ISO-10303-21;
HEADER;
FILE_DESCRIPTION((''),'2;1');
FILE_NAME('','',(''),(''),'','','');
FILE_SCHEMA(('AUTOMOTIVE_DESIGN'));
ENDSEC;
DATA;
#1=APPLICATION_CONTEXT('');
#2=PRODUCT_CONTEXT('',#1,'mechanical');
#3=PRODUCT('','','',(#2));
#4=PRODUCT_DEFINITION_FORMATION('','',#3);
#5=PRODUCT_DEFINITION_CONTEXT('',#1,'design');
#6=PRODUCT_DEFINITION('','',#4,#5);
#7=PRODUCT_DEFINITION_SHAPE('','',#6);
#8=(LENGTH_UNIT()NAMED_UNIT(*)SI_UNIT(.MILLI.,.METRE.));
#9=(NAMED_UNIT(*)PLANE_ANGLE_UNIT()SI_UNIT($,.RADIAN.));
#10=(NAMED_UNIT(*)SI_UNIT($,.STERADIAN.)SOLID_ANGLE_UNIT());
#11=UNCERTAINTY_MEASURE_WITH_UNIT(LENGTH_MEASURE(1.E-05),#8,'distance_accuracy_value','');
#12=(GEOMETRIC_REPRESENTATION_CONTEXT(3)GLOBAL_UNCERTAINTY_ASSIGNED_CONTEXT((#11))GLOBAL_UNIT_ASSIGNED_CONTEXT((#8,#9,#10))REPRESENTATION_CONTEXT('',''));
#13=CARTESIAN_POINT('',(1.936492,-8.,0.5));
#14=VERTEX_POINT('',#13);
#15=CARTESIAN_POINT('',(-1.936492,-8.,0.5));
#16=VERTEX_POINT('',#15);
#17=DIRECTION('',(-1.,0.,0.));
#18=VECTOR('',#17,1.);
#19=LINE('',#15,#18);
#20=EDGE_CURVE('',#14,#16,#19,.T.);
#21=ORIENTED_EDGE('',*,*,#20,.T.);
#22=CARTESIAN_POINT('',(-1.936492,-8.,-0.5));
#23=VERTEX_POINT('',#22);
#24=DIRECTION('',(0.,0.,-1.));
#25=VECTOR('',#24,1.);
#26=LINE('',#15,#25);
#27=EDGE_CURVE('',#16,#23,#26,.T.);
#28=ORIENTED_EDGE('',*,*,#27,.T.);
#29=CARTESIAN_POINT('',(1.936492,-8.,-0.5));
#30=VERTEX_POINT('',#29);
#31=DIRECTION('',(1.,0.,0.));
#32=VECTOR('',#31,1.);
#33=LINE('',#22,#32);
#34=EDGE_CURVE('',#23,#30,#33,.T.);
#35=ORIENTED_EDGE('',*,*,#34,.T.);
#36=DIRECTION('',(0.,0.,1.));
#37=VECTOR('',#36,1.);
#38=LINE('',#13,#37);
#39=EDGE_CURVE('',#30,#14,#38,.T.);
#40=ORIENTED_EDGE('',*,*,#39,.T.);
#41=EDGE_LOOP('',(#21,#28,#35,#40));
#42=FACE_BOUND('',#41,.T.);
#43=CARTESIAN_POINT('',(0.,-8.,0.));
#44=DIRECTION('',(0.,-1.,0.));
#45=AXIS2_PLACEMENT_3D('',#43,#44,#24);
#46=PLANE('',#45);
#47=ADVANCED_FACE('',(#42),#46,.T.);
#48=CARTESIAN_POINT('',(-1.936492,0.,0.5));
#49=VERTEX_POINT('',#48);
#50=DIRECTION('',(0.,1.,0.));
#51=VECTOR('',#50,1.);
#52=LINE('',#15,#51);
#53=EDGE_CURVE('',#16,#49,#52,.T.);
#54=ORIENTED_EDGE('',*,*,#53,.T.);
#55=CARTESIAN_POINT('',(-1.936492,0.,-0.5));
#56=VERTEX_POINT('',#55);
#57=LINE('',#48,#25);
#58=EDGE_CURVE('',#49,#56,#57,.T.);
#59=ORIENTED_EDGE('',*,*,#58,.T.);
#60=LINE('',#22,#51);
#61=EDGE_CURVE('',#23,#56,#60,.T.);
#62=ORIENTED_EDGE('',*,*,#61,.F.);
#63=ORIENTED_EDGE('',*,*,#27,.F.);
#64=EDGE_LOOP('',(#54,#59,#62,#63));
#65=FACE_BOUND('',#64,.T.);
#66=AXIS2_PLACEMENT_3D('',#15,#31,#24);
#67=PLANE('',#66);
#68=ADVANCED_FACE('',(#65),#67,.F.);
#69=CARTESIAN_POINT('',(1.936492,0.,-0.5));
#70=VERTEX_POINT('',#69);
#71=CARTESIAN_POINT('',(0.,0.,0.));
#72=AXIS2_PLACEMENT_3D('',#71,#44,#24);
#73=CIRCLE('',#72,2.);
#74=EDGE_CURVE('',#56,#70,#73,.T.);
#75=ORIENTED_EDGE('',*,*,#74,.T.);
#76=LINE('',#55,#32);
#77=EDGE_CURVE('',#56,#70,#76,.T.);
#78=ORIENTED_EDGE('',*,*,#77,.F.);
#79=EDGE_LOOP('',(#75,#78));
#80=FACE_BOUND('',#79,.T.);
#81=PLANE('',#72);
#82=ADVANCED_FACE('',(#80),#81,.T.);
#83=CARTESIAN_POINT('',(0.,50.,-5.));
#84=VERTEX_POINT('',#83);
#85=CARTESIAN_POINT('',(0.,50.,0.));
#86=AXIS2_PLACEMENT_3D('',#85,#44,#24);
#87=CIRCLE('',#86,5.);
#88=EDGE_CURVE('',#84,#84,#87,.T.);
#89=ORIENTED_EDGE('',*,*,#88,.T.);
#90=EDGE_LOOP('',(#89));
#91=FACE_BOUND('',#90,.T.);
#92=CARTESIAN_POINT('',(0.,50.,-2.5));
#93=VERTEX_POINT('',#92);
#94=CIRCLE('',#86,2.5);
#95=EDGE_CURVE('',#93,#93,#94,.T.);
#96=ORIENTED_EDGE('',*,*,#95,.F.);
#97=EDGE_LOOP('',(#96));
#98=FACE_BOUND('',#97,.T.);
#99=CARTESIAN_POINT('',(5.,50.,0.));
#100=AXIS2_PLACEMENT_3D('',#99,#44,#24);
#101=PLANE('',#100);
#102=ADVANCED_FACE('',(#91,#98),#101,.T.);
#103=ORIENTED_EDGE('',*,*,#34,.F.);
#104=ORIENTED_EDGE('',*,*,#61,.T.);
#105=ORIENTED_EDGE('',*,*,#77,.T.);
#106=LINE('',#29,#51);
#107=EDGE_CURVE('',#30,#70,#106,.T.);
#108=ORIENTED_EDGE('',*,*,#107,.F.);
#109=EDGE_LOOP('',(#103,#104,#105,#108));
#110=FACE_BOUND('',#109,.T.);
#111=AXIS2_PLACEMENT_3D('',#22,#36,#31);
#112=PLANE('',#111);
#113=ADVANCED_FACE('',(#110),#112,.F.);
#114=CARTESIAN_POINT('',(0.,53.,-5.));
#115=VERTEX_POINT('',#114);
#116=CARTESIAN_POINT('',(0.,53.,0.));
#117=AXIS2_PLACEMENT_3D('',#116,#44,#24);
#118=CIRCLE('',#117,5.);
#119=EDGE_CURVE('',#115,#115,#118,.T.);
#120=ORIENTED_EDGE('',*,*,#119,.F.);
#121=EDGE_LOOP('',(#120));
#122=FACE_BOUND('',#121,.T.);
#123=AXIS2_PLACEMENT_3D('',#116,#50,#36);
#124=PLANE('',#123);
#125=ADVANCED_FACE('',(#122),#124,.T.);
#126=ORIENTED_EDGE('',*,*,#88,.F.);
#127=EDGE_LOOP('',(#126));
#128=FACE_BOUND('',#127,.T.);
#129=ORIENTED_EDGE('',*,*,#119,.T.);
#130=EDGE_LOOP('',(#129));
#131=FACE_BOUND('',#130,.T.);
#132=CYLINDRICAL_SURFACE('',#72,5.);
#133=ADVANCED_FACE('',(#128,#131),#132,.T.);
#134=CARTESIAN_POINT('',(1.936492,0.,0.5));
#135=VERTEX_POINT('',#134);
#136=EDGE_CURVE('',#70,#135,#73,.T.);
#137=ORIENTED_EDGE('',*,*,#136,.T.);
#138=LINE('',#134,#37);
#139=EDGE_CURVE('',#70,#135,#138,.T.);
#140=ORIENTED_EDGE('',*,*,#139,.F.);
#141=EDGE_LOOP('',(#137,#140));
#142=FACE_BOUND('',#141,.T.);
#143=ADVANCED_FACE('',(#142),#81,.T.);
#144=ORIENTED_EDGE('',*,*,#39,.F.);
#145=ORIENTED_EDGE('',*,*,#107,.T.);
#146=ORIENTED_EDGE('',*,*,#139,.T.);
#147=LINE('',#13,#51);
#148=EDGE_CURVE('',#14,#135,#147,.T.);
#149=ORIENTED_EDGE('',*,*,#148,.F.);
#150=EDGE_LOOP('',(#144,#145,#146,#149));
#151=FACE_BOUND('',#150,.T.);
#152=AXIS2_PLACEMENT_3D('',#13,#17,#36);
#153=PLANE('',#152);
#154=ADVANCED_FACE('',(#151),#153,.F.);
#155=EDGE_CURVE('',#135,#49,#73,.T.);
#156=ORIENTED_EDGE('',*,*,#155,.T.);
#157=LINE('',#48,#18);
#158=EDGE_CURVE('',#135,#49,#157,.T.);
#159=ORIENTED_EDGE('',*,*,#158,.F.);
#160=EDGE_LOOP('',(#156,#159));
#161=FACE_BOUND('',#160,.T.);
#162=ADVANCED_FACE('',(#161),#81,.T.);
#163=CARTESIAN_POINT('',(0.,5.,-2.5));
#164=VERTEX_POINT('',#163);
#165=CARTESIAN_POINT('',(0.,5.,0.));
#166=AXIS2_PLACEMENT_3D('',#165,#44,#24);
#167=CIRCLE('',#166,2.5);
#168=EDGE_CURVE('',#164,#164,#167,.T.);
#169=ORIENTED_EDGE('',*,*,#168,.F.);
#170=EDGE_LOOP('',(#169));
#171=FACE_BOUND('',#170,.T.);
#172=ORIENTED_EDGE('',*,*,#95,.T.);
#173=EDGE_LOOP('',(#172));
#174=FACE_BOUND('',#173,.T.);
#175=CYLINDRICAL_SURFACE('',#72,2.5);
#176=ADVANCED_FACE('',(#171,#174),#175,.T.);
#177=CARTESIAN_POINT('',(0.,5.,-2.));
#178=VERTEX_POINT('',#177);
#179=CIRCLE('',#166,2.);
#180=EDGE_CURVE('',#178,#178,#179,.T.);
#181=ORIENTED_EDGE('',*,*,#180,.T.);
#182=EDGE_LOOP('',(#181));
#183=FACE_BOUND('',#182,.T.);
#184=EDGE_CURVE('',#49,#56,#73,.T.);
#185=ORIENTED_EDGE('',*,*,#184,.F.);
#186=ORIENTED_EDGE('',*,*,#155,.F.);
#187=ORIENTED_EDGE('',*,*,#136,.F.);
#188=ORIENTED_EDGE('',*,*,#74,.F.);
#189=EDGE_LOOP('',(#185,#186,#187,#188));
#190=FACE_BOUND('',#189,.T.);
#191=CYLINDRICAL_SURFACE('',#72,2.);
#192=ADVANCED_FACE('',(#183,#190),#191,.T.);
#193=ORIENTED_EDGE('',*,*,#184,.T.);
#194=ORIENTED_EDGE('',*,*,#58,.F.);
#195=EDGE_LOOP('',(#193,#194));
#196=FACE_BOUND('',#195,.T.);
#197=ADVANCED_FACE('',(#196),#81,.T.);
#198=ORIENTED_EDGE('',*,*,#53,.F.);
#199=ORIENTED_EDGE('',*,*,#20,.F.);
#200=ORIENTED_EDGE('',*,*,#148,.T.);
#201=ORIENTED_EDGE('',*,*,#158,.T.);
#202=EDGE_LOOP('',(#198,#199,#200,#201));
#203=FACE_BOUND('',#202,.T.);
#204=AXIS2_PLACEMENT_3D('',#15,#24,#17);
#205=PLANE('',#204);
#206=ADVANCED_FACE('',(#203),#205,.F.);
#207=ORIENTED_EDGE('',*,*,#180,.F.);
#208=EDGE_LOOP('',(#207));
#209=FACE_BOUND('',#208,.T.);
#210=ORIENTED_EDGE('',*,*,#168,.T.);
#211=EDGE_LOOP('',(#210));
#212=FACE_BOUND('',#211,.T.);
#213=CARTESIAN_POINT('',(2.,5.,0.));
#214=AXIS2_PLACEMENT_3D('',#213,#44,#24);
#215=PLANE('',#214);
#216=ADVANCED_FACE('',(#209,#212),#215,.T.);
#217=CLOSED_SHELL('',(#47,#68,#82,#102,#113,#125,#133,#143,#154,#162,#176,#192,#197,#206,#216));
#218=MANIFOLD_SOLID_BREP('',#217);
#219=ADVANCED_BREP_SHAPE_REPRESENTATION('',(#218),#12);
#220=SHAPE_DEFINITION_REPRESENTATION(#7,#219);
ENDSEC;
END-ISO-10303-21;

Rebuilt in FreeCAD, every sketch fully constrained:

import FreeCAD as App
import Part
import Sketcher
Q = App.Units.Quantity


def add_polygon(sketch, points):
    """Adds a closed chain of lines whose ends are joined by coincident constraints."""
    first, n = sketch.GeometryCount, len(points)
    for a, b in zip(points, points[1:] + points[:1]):
        sketch.addGeometry(Part.LineSegment(App.Vector(*a, 0), App.Vector(*b, 0)), False)
    for i in range(n):
        sketch.addConstraint(Sketcher.Constraint("Coincident", first + i, 2, first + (i + 1) % n, 1))

doc = App.newDocument("Part")
body = doc.addObject("PartDesign::Body", "Body")

# Sketch on XY plane
sketch1 = doc.addObject("Sketcher::SketchObject", "Sketch")
body.addObject(sketch1)
sketch1.AttachmentSupport = (doc.XY_Plane, [""])
sketch1.MapMode = "FlatFace"
add_polygon(sketch1, [(0, 53), (0, 0), (2, 0), (2, 5), (2.5, 5), (2.5, 50), (5, 50), (5, 53)])  # lines 0-7
sketch1.addConstraint([
    Sketcher.Constraint("Vertical", 0),
    Sketcher.Constraint("Horizontal", 1),
    Sketcher.Constraint("Vertical", 2),
    Sketcher.Constraint("Horizontal", 3),
    Sketcher.Constraint("Vertical", 4),
    Sketcher.Constraint("Horizontal", 5),
    Sketcher.Constraint("Vertical", 6),
    Sketcher.Constraint("Horizontal", 7),
    Sketcher.Constraint("Coincident", 0, 2, -1, 1),
    Sketcher.Constraint("Equal", 7, 2),
    Sketcher.Constraint("DistanceX", 1, 1, 1, 2, Q("2 mm")),
    Sketcher.Constraint("DistanceX", 7, 2, 7, 1, Q("5 mm")),
    Sketcher.Constraint("DistanceY", 0, 2, 0, 1, Q("53 mm")),
    Sketcher.Constraint("DistanceY", 4, 1, 4, 2, Q("45 mm")),
    Sketcher.Constraint("DistanceX", 3, 1, 3, 2, Q("0.5 mm")),
])
revolution = doc.addObject("PartDesign::Revolution", "Revolution")
body.addObject(revolution)
revolution.Profile = sketch1
revolution.ReferenceAxis = (sketch1, ["V_Axis"])
revolution.Angle = 360

# Sketch on XZ plane
sketch2 = doc.addObject("Sketcher::SketchObject", "Sketch001")
body.addObject(sketch2)
sketch2.AttachmentSupport = (doc.XZ_Plane, [""])
sketch2.MapMode = "FlatFace"
add_polygon(sketch2, [(-1.9, 0.5), (-1.9, -0.5), (1.9, -0.5), (1.9, 0.5)])  # lines 0-3
sketch2.addConstraint([
    Sketcher.Constraint("Vertical", 0),
    Sketcher.Constraint("Horizontal", 1),
    Sketcher.Constraint("Vertical", 2),
    Sketcher.Constraint("Horizontal", 3),
    Sketcher.Constraint("Symmetric", 0, 2, 2, 2, -1, 1),
    Sketcher.Constraint("DistanceY", 0, 2, 0, 1, Q("1 mm")),
    Sketcher.Constraint("DistanceX", 1, 1, 1, 2, Q("3.872983 mm")),
])
pad1 = doc.addObject("PartDesign::Pad", "Pad")
body.addObject(pad1)
pad1.Profile = sketch2
pad1.Length = 8

doc.recompute()
